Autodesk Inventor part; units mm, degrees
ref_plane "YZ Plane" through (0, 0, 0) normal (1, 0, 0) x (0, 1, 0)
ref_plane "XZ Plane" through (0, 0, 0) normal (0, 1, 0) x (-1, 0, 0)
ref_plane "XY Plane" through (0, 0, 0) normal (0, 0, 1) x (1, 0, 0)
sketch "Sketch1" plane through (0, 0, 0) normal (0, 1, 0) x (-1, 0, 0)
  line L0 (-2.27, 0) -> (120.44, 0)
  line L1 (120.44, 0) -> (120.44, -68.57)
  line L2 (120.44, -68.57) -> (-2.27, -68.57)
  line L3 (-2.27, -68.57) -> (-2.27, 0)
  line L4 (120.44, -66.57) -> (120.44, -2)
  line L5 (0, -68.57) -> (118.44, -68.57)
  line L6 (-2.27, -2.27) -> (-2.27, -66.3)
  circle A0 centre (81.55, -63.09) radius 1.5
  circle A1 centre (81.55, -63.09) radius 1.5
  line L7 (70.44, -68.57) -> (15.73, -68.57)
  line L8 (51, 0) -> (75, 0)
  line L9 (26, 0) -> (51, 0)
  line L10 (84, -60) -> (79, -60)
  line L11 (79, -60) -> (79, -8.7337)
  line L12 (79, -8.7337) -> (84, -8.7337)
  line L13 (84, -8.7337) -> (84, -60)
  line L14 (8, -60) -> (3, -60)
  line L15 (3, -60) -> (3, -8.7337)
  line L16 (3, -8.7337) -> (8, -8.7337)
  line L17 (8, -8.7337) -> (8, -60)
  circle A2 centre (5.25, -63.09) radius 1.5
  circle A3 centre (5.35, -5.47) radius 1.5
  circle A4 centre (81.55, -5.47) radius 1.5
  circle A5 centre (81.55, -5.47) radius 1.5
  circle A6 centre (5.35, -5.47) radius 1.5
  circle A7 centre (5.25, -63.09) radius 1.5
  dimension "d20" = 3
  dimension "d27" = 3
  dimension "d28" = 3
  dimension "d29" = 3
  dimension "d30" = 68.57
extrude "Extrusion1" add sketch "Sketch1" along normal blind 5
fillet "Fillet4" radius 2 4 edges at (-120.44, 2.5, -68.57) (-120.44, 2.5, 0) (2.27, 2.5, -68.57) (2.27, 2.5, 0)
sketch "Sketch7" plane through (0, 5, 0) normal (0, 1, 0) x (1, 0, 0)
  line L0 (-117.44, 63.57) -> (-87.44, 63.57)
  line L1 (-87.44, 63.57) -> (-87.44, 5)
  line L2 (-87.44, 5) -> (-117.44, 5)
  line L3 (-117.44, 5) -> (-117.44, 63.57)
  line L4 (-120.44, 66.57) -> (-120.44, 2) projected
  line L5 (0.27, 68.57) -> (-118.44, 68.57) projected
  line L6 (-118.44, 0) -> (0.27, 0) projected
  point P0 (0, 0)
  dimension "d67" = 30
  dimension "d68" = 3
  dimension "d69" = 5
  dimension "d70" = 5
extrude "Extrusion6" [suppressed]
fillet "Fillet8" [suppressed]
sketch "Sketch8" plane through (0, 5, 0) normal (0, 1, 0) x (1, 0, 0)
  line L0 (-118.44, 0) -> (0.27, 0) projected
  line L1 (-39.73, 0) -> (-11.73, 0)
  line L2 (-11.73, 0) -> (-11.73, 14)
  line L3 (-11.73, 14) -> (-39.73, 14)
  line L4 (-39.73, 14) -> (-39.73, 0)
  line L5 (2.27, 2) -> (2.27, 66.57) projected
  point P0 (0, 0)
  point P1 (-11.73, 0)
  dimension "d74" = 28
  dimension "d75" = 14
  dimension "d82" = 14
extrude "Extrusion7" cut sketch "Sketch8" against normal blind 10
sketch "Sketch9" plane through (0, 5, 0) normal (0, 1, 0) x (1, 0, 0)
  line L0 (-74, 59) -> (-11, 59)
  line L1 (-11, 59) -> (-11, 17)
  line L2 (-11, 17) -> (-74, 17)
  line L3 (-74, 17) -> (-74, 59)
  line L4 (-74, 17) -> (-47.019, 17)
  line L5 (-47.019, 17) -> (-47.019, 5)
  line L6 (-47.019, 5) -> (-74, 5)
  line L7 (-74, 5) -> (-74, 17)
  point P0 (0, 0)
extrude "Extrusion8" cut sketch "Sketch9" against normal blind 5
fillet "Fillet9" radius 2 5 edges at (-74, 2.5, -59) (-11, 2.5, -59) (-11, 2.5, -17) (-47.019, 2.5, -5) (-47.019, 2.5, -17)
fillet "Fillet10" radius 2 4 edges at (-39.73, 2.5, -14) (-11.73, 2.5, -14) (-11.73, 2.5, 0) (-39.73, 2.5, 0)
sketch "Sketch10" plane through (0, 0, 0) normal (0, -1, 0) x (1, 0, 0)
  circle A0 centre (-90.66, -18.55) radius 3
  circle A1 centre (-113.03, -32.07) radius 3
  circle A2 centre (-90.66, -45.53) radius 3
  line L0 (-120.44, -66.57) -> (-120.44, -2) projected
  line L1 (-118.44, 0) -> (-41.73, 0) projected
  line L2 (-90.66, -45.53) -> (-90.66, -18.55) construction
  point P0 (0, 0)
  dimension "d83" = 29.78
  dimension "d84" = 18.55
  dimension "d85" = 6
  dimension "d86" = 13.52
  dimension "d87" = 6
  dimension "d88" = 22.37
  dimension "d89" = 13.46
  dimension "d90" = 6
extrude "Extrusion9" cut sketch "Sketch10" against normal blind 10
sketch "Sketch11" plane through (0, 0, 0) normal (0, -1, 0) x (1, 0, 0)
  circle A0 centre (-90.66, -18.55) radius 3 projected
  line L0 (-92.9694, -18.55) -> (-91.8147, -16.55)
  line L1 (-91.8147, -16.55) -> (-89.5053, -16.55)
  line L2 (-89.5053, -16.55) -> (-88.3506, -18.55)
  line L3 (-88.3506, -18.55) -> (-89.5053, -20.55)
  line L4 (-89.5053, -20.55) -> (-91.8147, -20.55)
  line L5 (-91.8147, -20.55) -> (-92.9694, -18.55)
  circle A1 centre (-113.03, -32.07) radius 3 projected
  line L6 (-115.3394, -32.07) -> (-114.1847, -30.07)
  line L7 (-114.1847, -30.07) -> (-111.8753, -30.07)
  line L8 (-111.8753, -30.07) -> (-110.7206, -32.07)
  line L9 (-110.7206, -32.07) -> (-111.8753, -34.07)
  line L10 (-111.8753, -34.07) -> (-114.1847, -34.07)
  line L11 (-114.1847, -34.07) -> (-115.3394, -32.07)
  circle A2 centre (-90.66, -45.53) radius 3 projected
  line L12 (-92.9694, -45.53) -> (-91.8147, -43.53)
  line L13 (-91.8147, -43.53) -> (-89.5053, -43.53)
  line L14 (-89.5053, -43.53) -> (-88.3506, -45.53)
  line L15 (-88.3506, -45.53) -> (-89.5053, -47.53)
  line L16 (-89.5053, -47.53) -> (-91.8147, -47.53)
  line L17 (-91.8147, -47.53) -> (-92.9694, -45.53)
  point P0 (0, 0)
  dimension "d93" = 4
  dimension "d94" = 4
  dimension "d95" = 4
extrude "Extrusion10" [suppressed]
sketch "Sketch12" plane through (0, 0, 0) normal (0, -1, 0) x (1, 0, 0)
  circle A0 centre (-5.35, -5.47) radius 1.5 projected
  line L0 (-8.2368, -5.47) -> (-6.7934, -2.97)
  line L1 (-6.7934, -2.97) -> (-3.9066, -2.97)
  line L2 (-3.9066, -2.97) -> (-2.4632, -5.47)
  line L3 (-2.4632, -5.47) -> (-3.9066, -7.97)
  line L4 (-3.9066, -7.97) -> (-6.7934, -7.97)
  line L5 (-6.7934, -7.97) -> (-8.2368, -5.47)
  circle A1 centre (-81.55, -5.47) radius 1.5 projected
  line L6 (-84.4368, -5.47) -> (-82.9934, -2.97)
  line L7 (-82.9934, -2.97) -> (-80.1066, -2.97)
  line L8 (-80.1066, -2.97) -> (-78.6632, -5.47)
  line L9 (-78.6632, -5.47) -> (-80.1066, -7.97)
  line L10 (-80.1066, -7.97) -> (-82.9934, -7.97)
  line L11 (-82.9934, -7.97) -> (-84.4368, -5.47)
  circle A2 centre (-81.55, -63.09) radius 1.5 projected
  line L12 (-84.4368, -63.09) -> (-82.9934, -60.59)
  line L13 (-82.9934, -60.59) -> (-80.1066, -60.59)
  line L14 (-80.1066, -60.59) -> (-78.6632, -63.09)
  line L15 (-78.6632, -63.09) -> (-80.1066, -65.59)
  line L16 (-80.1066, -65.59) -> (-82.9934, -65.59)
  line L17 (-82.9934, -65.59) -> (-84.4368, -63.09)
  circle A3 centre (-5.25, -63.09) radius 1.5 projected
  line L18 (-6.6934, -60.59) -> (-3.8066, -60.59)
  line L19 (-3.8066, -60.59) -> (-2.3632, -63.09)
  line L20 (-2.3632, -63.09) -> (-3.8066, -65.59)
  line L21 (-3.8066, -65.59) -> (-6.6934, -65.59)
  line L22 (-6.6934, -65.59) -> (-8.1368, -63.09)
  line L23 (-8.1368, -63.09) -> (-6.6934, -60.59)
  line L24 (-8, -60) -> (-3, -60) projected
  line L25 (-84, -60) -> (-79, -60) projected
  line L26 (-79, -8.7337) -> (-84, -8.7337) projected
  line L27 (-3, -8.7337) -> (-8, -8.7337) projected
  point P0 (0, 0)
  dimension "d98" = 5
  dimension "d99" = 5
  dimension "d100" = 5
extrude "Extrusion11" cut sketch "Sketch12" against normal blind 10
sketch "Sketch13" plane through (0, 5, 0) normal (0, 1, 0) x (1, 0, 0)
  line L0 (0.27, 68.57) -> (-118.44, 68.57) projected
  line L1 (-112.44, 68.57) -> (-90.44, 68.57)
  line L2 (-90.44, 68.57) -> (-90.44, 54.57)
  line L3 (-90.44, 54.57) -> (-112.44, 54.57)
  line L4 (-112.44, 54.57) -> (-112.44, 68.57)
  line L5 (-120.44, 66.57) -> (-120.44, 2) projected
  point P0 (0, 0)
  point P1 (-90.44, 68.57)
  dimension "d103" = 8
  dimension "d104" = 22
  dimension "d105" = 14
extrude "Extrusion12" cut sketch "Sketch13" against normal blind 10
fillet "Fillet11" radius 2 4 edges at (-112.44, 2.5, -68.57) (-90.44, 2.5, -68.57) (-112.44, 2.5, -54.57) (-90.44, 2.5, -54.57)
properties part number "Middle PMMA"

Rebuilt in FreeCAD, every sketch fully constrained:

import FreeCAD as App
import Part
import Sketcher
from FreeCAD import Vector
Q = App.Units.Quantity


def edges_at(feature, points):
    """Names of the edges that pass closest to the given points."""
    edges = feature.Shape.Edges
    near = lambda p: min(range(len(edges)), key=lambda i: edges[i].distToShape(Part.Vertex(*p))[0])
    return sorted({f"Edge{near(p) + 1}" for p in points})


def add_polygon(sketch, points):
    """Adds a closed chain of lines whose ends are joined by coincident constraints."""
    first, n = sketch.GeometryCount, len(points)
    for a, b in zip(points, points[1:] + points[:1]):
        sketch.addGeometry(Part.LineSegment(App.Vector(*a, 0), App.Vector(*b, 0)), False)
    for i in range(n):
        sketch.addConstraint(Sketcher.Constraint("Coincident", first + i, 2, first + (i + 1) % n, 1))

doc = App.newDocument("Part")
body = doc.addObject("PartDesign::Body", "Body")

# Sketch on XZ plane
sketch1 = doc.addObject("Sketcher::SketchObject", "Sketch")
body.addObject(sketch1)
sketch1.AttachmentSupport = (doc.XZ_Plane, [""])
sketch1.MapMode = "FlatFace"
add_polygon(sketch1, [(-120.44, 0), (2.27, 0), (2.27, -68.57), (-120.44, -68.57)])  # lines 0-3
sketch1.addGeometry(Part.Circle(Vector(-5.25, -63.09, 0), Vector(0, 0, 1), 1.5), False)  # 4
add_polygon(sketch1, [(-8, -8.7337), (-8, -60), (-3, -60), (-3, -8.7337)])  # lines 5-8
sketch1.addGeometry(Part.Circle(Vector(-81.55, -63.09, 0), Vector(0, 0, 1), 1.5), False)  # 9
add_polygon(sketch1, [(-84, -8.7337), (-84, -60), (-79, -60), (-79, -8.7337)])  # lines 10-13
sketch1.addGeometry(Part.Circle(Vector(-5.35, -5.47, 0), Vector(0, 0, 1), 1.5), False)  # 14
sketch1.addGeometry(Part.Circle(Vector(-81.55, -5.47, 0), Vector(0, 0, 1), 1.5), False)  # 15
sketch1.addConstraint([
    Sketcher.Constraint("Horizontal", 0),
    Sketcher.Constraint("Vertical", 1),
    Sketcher.Constraint("Horizontal", 2),
    Sketcher.Constraint("Vertical", 3),
    Sketcher.Constraint("Vertical", 5),
    Sketcher.Constraint("Horizontal", 6),
    Sketcher.Constraint("Vertical", 7),
    Sketcher.Constraint("Horizontal", 8),
    Sketcher.Constraint("Vertical", 10),
    Sketcher.Constraint("Horizontal", 11),
    Sketcher.Constraint("Vertical", 12),
    Sketcher.Constraint("Horizontal", 13),
    Sketcher.Constraint("Equal", 4, 9),
    Sketcher.Constraint("Equal", 9, 14),
    Sketcher.Constraint("Equal", 14, 15),
    Sketcher.Constraint("PointOnObject", 0, 2, -1),
    Sketcher.Constraint("Horizontal", 4, 3, 9, 3),
    Sketcher.Constraint("Horizontal", 14, 3, 15, 3),
    Sketcher.Constraint("Horizontal", 6, 2, 10, 2),
    Sketcher.Constraint("Horizontal", 8, 2, 12, 2),
    Sketcher.Constraint("Vertical", 9, 3, 15, 3),
    Sketcher.Constraint("Equal", 8, 11),
    Sketcher.Constraint("Diameter", 4, Q("3 mm")),
    Sketcher.Constraint("DistanceX", 6, 2, -1, 1, Q("3 mm")),
    Sketcher.Constraint("DistanceY", 1, 2, 1, 1, Q("68.57 mm")),
    Sketcher.Constraint("DistanceX", 6, 1, 6, 2, Q("5 mm")),
    Sketcher.Constraint("DistanceY", 5, 2, -1, 1, Q("60 mm")),
    Sketcher.Constraint("DistanceX", 10, 2, -1, 1, Q("84 mm")),
    Sketcher.Constraint("DistanceX", 0, 1, 0, 2, Q("122.71 mm")),
    Sketcher.Constraint("DistanceX", 9, 3, 4, 3, Q("76.3 mm")),
    Sketcher.Constraint("DistanceX", 14, 3, 4, 3, Q("0.1 mm")),
    Sketcher.Constraint("DistanceY", 1, 2, 14, 3, Q("63.1 mm")),
    Sketcher.Constraint("DistanceX", 4, 3, -1, 1, Q("5.25 mm")),
    Sketcher.Constraint("DistanceY", 4, 3, -1, 1, Q("63.09 mm")),
    Sketcher.Constraint("DistanceX", -1, 1, 0, 2, Q("2.27 mm")),
    Sketcher.Constraint("DistanceY", 5, 2, 5, 1, Q("51.2663 mm")),
])
pad1 = doc.addObject("PartDesign::Pad", "Pad")
body.addObject(pad1)
pad1.Profile = sketch1
pad1.Length = 5
pad1.Reversed = True
doc.recompute()

fillet = doc.addObject("PartDesign::Fillet", "Fillet")
body.addObject(fillet)
fillet.Base = (pad1, edges_at(pad1, [
    (-120.44, 2.5, -68.57),
    (-120.44, 2.5, 0),
    (2.27, 2.5, -68.57),
    (2.27, 2.5, 0),
]))
fillet.Radius = 2

# Sketch on XZ plane
sketch2 = doc.addObject("Sketcher::SketchObject", "Sketch001")
body.addObject(sketch2)
sketch2.AttachmentSupport = (doc.XZ_Plane, [""])
sketch2.MapMode = "FlatFace"
sketch2.AttachmentOffset = App.Placement(Vector(0, 0, -5), App.Rotation())
add_polygon(sketch2, [(-39.73, -14), (-39.73, 0), (-11.73, 0), (-11.73, -14)])  # lines 0-3
sketch2.addConstraint([
    Sketcher.Constraint("Vertical", 0),
    Sketcher.Constraint("Horizontal", 1),
    Sketcher.Constraint("Vertical", 2),
    Sketcher.Constraint("Horizontal", 3),
    Sketcher.Constraint("PointOnObject", 0, 2, -1),
    Sketcher.Constraint("DistanceX", 1, 1, 1, 2, Q("28 mm")),
    Sketcher.Constraint("DistanceY", 0, 1, 0, 2, Q("14 mm")),
    Sketcher.Constraint("DistanceX", 0, 2, -1, 1, Q("39.73 mm")),
])
pocket1 = doc.addObject("PartDesign::Pocket", "Pocket")
body.addObject(pocket1)
pocket1.Profile = sketch2
pocket1.Length = 10
pocket1.Reversed = True

# Sketch on XZ plane
sketch3 = doc.addObject("Sketcher::SketchObject", "Sketch002")
body.addObject(sketch3)
sketch3.AttachmentSupport = (doc.XZ_Plane, [""])
sketch3.MapMode = "FlatFace"
sketch3.AttachmentOffset = App.Placement(Vector(0, 0, -5), App.Rotation())
add_polygon(sketch3, [(-11, -59), (-74, -59), (-74, -5), (-47.019, -5), (-47.019, -17), (-11, -17)])  # lines 0-5
sketch3.addConstraint([
    Sketcher.Constraint("Horizontal", 0),
    Sketcher.Constraint("Vertical", 1),
    Sketcher.Constraint("Horizontal", 2),
    Sketcher.Constraint("Vertical", 3),
    Sketcher.Constraint("Horizontal", 4),
    Sketcher.Constraint("Vertical", 5),
    Sketcher.Constraint("DistanceX", 0, 2, 0, 1, Q("63 mm")),
    Sketcher.Constraint("DistanceY", 1, 1, 1, 2, Q("54 mm")),
    Sketcher.Constraint("DistanceY", 3, 2, 3, 1, Q("12 mm")),
    Sketcher.Constraint("DistanceX", 0, 2, -1, 1, Q("74 mm")),
    Sketcher.Constraint("DistanceY", 0, 2, -1, 1, Q("59 mm")),
    Sketcher.Constraint("DistanceX", 2, 1, 2, 2, Q("26.981 mm")),
])
pocket2 = doc.addObject("PartDesign::Pocket", "Pocket001")
body.addObject(pocket2)
pocket2.Profile = sketch3
pocket2.Length = 5
pocket2.Reversed = True
doc.recompute()

fillet2 = doc.addObject("PartDesign::Fillet", "Fillet001")
body.addObject(fillet2)
fillet2.Base = (pocket2, edges_at(pocket2, [
    (-74, 2.5, -59),
    (-11, 2.5, -59),
    (-11, 2.5, -17),
    (-47.019, 2.5, -5),
    (-47.019, 2.5, -17),
]))
fillet2.Radius = 2
doc.recompute()

fillet3 = doc.addObject("PartDesign::Fillet", "Fillet002")
body.addObject(fillet3)
fillet3.Base = (fillet2, edges_at(fillet2, [
    (-39.73, 2.5, -14),
    (-11.73, 2.5, -14),
    (-11.73, 2.5, 0),
    (-39.73, 2.5, 0),
]))
fillet3.Radius = 2

# Sketch on XZ plane
sketch4 = doc.addObject("Sketcher::SketchObject", "Sketch003")
body.addObject(sketch4)
sketch4.AttachmentSupport = (doc.XZ_Plane, [""])
sketch4.MapMode = "FlatFace"
sketch4.addGeometry([
    Part.Circle(Vector(-90.66, -18.55, 0), Vector(0, 0, 1), 3),
    Part.Circle(Vector(-113.03, -32.07, 0), Vector(0, 0, 1), 3),
    Part.Circle(Vector(-90.66, -45.53, 0), Vector(0, 0, 1), 3),
], False)
sketch4.addConstraint([
    Sketcher.Constraint("Equal", 0, 1),
    Sketcher.Constraint("Equal", 1, 2),
    Sketcher.Constraint("Vertical", 0, 3, 2, 3),
    Sketcher.Constraint("Diameter", 0, Q("6 mm")),
    Sketcher.Constraint("DistanceY", 0, 3, -1, 1, Q("18.55 mm")),
    Sketcher.Constraint("DistanceX", 1, 3, 0, 3, Q("22.37 mm")),
    Sketcher.Constraint("DistanceY", 1, 3, 0, 3, Q("13.52 mm")),
    Sketcher.Constraint("DistanceY", 2, 3, 1, 3, Q("13.46 mm")),
    Sketcher.Constraint("DistanceX", 0, 3, -1, 1, Q("90.66 mm")),
])
pocket3 = doc.addObject("PartDesign::Pocket", "Pocket002")
body.addObject(pocket3)
pocket3.Profile = sketch4
pocket3.Length = 10

# Sketch on XZ plane
sketch5 = doc.addObject("Sketcher::SketchObject", "Sketch004")
body.addObject(sketch5)
sketch5.AttachmentSupport = (doc.XZ_Plane, [""])
sketch5.MapMode = "FlatFace"
add_polygon(sketch5, [(-6.7934, -2.97), (-8.2368, -5.47), (-6.7934, -7.97), (-3.9066, -7.97), (-2.4632, -5.47), (-3.9066, -2.97)])  # lines 0-5
sketch5.addGeometry(Part.Circle(Vector(-5.35, -5.47, 0), Vector(0, 0, 1), 1.5), False)  # 6
add_polygon(sketch5, [(-82.9934, -2.97), (-84.4368, -5.47), (-82.9934, -7.97), (-80.1066, -7.97), (-78.6632, -5.47), (-80.1066, -2.97)])  # lines 7-12
sketch5.addGeometry(Part.Circle(Vector(-81.55, -5.47, 0), Vector(0, 0, 1), 1.5), False)  # 13
add_polygon(sketch5, [(-82.9934, -60.59), (-84.4368, -63.09), (-82.9934, -65.59), (-80.1066, -65.59), (-78.6632, -63.09), (-80.1066, -60.59)])  # lines 14-19
sketch5.addGeometry(Part.Circle(Vector(-81.55, -63.09, 0), Vector(0, 0, 1), 1.5), False)  # 20
add_polygon(sketch5, [(-3.8066, -60.59), (-6.6934, -60.59), (-8.1368, -63.09), (-6.6934, -65.59), (-3.8066, -65.59), (-2.3632, -63.09)])  # lines 21-26
sketch5.addGeometry(Part.Circle(Vector(-5.25, -63.09, 0), Vector(0, 0, 1), 1.5), False)  # 27
sketch5.addConstraint([
    Sketcher.Constraint("Horizontal", 2),
    Sketcher.Constraint("Horizontal", 5),
    Sketcher.Constraint("Horizontal", 9),
    Sketcher.Constraint("Horizontal", 12),
    Sketcher.Constraint("Horizontal", 16),
    Sketcher.Constraint("Horizontal", 19),
    Sketcher.Constraint("Horizontal", 21),
    Sketcher.Constraint("Horizontal", 24),
    Sketcher.Constraint("Equal", 6, 13),
    Sketcher.Constraint("Equal", 13, 20),
    Sketcher.Constraint("Equal", 20, 27),
    Sketcher.Constraint("Parallel", 0, 3),
    Sketcher.Constraint("Parallel", 1, 4),
    Sketcher.Constraint("Parallel", 3, 7),
    Sketcher.Constraint("Parallel", 4, 8),
    Sketcher.Constraint("Parallel", 7, 10),
    Sketcher.Constraint("Parallel", 8, 11),
    Sketcher.Constraint("Parallel", 10, 14),
    Sketcher.Constraint("Parallel", 11, 15),
    Sketcher.Constraint("Parallel", 14, 17),
    Sketcher.Constraint("Parallel", 15, 18),
    Sketcher.Constraint("Parallel", 17, 22),
    Sketcher.Constraint("Parallel", 18, 23),
    Sketcher.Constraint("Parallel", 22, 25),
    Sketcher.Constraint("Parallel", 23, 26),
    Sketcher.Constraint("Horizontal", 6, 3, 13, 3),
    Sketcher.Constraint("Horizontal", 20, 3, 27, 3),
    Sketcher.Constraint("Horizontal", 13, 3, 0, 2),
    Sketcher.Constraint("Horizontal", 0, 2, 3, 2),
    Sketcher.Constraint("Horizontal", 3, 2, 7, 2),
    Sketcher.Constraint("Horizontal", 2, 2, 8, 2),
    Sketcher.Constraint("Horizontal", 7, 2, 10, 2),
    Sketcher.Constraint("Horizontal", 5, 2, 11, 2),
    Sketcher.Constraint("Horizontal", 27, 3, 14, 2),
    Sketcher.Constraint("Horizontal", 14, 2, 17, 2),
    Sketcher.Constraint("Horizontal", 19, 2, 21, 2),
    Sketcher.Constraint("Horizontal", 17, 2, 22, 2),
    Sketcher.Constraint("Horizontal", 16, 2, 23, 2),
    Sketcher.Constraint("Horizontal", 22, 2, 25, 2),
    Sketcher.Constraint("Vertical", 13, 3, 20, 3),
    Sketcher.Constraint("Vertical", 2, 2, 4, 2),
    Sketcher.Constraint("Vertical", 1, 2, 5, 2),
    Sketcher.Constraint("Vertical", 7, 2, 14, 2),
    Sketcher.Constraint("Vertical", 12, 2, 15, 2),
    Sketcher.Constraint("Vertical", 11, 2, 16, 2),
    Sketcher.Constraint("Vertical", 16, 2, 18, 2),
    Sketcher.Constraint("Equal", 5, 9),
    Sketcher.Constraint("Equal", 19, 21),
    Sketcher.Constraint("Diameter", 6, Q("3 mm")),
    Sketcher.Constraint("DistanceY", 2, 2, 4, 2, Q("5 mm")),
    Sketcher.Constraint("Angle", 0, Q("-120.0004 deg")),
    Sketcher.Constraint("DistanceX", 13, 3, 6, 3, Q("76.2 mm")),
    Sketcher.Constraint("DistanceX", 6, 3, 27, 3, Q("0.1 mm")),
    Sketcher.Constraint("DistanceX", 7, 2, 0, 2, Q("76.2 mm")),
    Sketcher.Constraint("DistanceX", 1, 2, 21, 2, Q("0.1 mm")),
    Sketcher.Constraint("DistanceX", 6, 3, -1, 1, Q("5.35 mm")),
    Sketcher.Constraint("DistanceY", 6, 3, -1, 1, Q("5.47 mm")),
    Sketcher.Constraint("DistanceY", 20, 3, -1, 1, Q("63.09 mm")),
    Sketcher.Constraint("DistanceX", 2, 1, 2, 2, Q("2.8868 mm")),
    Sketcher.Constraint("DistanceX", 0, 2, -1, 1, Q("8.2368 mm")),
])
pocket4 = doc.addObject("PartDesign::Pocket", "Pocket003")
body.addObject(pocket4)
pocket4.Profile = sketch5
pocket4.Length = 10

# Sketch on XZ plane
sketch6 = doc.addObject("Sketcher::SketchObject", "Sketch005")
body.addObject(sketch6)
sketch6.AttachmentSupport = (doc.XZ_Plane, [""])
sketch6.MapMode = "FlatFace"
sketch6.AttachmentOffset = App.Placement(Vector(0, 0, -5), App.Rotation())
add_polygon(sketch6, [(-90.44, -54.57), (-90.44, -68.57), (-112.44, -68.57), (-112.44, -54.57)])  # lines 0-3
sketch6.addConstraint([
    Sketcher.Constraint("Vertical", 0),
    Sketcher.Constraint("Horizontal", 1),
    Sketcher.Constraint("Vertical", 2),
    Sketcher.Constraint("Horizontal", 3),
    Sketcher.Constraint("DistanceX", 1, 2, 1, 1, Q("22 mm")),
    Sketcher.Constraint("DistanceY", 0, 2, 0, 1, Q("14 mm")),
    Sketcher.Constraint("DistanceX", 0, 2, -1, 1, Q("90.44 mm")),
    Sketcher.Constraint("DistanceY", 0, 2, -1, 1, Q("68.57 mm")),
])
pocket5 = doc.addObject("PartDesign::Pocket", "Pocket004")
body.addObject(pocket5)
pocket5.Profile = sketch6
pocket5.Length = 10
pocket5.Reversed = True
doc.recompute()

fillet4 = doc.addObject("PartDesign::Fillet", "Fillet003")
body.addObject(fillet4)
fillet4.Base = (pocket5, edges_at(pocket5, [
    (-112.44, 2.5, -68.57),
    (-90.44, 2.5, -68.57),
    (-112.44, 2.5, -54.57),
    (-90.44, 2.5, -54.57),
]))
fillet4.Radius = 2

doc.recompute()
